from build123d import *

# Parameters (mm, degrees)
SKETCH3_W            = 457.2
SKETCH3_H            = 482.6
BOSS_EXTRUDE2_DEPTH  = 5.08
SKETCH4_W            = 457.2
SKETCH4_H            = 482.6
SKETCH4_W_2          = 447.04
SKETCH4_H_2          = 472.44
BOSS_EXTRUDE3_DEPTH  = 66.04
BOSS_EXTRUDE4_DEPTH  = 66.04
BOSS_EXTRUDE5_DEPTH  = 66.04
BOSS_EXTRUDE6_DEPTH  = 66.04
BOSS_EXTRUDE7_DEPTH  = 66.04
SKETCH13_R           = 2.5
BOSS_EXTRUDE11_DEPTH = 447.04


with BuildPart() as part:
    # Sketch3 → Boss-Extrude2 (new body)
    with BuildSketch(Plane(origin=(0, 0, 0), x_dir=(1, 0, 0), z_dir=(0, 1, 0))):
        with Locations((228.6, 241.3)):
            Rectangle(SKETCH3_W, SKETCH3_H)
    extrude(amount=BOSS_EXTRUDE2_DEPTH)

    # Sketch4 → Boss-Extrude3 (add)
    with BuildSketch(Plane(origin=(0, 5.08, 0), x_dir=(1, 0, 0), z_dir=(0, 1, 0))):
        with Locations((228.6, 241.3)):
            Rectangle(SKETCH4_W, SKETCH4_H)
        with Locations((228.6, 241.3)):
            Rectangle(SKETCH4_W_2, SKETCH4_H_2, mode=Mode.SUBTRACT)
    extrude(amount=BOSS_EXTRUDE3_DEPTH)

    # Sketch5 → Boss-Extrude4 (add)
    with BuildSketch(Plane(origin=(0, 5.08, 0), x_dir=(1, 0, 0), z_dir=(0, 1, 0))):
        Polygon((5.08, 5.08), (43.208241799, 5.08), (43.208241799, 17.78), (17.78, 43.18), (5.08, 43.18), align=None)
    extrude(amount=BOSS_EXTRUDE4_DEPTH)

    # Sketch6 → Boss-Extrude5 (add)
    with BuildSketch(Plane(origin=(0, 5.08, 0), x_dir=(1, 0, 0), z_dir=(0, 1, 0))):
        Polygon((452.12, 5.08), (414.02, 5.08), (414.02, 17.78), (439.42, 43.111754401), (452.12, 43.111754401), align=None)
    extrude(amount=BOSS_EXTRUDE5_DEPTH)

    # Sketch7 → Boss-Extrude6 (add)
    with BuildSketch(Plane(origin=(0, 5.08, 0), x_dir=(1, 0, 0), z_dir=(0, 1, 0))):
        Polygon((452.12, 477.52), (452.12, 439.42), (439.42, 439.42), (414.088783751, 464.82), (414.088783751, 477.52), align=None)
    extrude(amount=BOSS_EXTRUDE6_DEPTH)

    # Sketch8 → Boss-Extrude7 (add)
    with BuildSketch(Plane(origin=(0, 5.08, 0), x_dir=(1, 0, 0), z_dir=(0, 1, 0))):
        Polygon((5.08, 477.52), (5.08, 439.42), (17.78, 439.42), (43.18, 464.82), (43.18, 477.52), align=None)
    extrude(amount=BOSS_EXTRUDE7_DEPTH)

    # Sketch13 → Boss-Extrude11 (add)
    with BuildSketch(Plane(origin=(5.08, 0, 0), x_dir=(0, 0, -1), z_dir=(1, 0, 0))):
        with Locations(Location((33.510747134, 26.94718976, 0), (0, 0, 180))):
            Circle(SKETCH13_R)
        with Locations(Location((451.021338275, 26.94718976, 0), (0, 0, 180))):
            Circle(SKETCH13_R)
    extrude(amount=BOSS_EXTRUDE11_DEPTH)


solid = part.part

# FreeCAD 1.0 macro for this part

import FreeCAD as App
import Part
import Sketcher
Q = App.Units.Quantity

doc = App.newDocument("Part")
body = doc.addObject("PartDesign::Body", "Body")

# Sketch on XZ plane
sketch1 = body.newObject("Sketcher::SketchObject", "Sketch")
sketch1.AttachmentSupport = (doc.getObject("XZ_Plane"), [""])
sketch1.MapMode = "FlatFace"
sketch1.addGeometry(Part.LineSegment(App.Vector(0, -482.6, 0), App.Vector(0, 0, 0)), False)
sketch1.addGeometry(Part.LineSegment(App.Vector(0, 0, 0), App.Vector(457.2, 0, 0)), False)
sketch1.addGeometry(Part.LineSegment(App.Vector(457.2, 0, 0), App.Vector(457.2, -482.6, 0)), False)
sketch1.addGeometry(Part.LineSegment(App.Vector(457.2, -482.6, 0), App.Vector(0, -482.6, 0)), False)
sketch1.addConstraint(Sketcher.Constraint("Coincident", 0, 2, 1, 1))
sketch1.addConstraint(Sketcher.Constraint("Coincident", 1, 2, 2, 1))
sketch1.addConstraint(Sketcher.Constraint("Coincident", 2, 2, 3, 1))
sketch1.addConstraint(Sketcher.Constraint("Coincident", 3, 2, 0, 1))
sketch1.addConstraint(Sketcher.Constraint("Vertical", 0))
sketch1.addConstraint(Sketcher.Constraint("Horizontal", 1))
sketch1.addConstraint(Sketcher.Constraint("Vertical", 2))
sketch1.addConstraint(Sketcher.Constraint("Horizontal", 3))
sketch1.addConstraint(Sketcher.Constraint("Coincident", 0, 2, -1, 1))
sketch1.addConstraint(Sketcher.Constraint("DistanceX", 1, 1, 1, 2, Q("18 in")))
sketch1.addConstraint(Sketcher.Constraint("DistanceY", 0, 1, 0, 2, Q("19 in")))
pad1 = body.newObject("PartDesign::Pad", "Pad")
pad1.Profile = sketch1
pad1.Length = Q("0.2 in")
pad1.Reversed = True

# Sketch on XZ plane
sketch2 = body.newObject("Sketcher::SketchObject", "Sketch001")
sketch2.AttachmentSupport = (doc.getObject("XZ_Plane"), [""])
sketch2.MapMode = "FlatFace"
sketch2.AttachmentOffset = App.Placement(App.Vector(0, 0, -0.2 * 25.4), App.Rotation())
sketch2.addGeometry(Part.LineSegment(App.Vector(0, -482.6, 0), App.Vector(0, 0, 0)), False)
sketch2.addGeometry(Part.LineSegment(App.Vector(0, 0, 0), App.Vector(457.2, 0, 0)), False)
sketch2.addGeometry(Part.LineSegment(App.Vector(457.2, 0, 0), App.Vector(457.2, -482.6, 0)), False)
sketch2.addGeometry(Part.LineSegment(App.Vector(457.2, -482.6, 0), App.Vector(0, -482.6, 0)), False)
sketch2.addGeometry(Part.LineSegment(App.Vector(452.12, -5.08, 0), App.Vector(5.08, -5.08, 0)), False)
sketch2.addGeometry(Part.LineSegment(App.Vector(5.08, -5.08, 0), App.Vector(5.08, -477.52, 0)), False)
sketch2.addGeometry(Part.LineSegment(App.Vector(5.08, -477.52, 0), App.Vector(452.12, -477.52, 0)), False)
sketch2.addGeometry(Part.LineSegment(App.Vector(452.12, -477.52, 0), App.Vector(452.12, -5.08, 0)), False)
sketch2.addConstraint(Sketcher.Constraint("Coincident", 0, 2, 1, 1))
sketch2.addConstraint(Sketcher.Constraint("Coincident", 1, 2, 2, 1))
sketch2.addConstraint(Sketcher.Constraint("Coincident", 2, 2, 3, 1))
sketch2.addConstraint(Sketcher.Constraint("Coincident", 3, 2, 0, 1))
sketch2.addConstraint(Sketcher.Constraint("Coincident", 4, 2, 5, 1))
sketch2.addConstraint(Sketcher.Constraint("Coincident", 5, 2, 6, 1))
sketch2.addConstraint(Sketcher.Constraint("Coincident", 6, 2, 7, 1))
sketch2.addConstraint(Sketcher.Constraint("Coincident", 7, 2, 4, 1))
sketch2.addConstraint(Sketcher.Constraint("Vertical", 0))
sketch2.addConstraint(Sketcher.Constraint("Horizontal", 1))
sketch2.addConstraint(Sketcher.Constraint("Vertical", 2))
sketch2.addConstraint(Sketcher.Constraint("Horizontal", 3))
sketch2.addConstraint(Sketcher.Constraint("Horizontal", 4))
sketch2.addConstraint(Sketcher.Constraint("Vertical", 5))
sketch2.addConstraint(Sketcher.Constraint("Horizontal", 6))
sketch2.addConstraint(Sketcher.Constraint("Vertical", 7))
sketch2.addConstraint(Sketcher.Constraint("Coincident", 0, 2, -1, 1))
sketch2.addConstraint(Sketcher.Constraint("DistanceX", 1, 1, 1, 2, Q("18 in")))
sketch2.addConstraint(Sketcher.Constraint("DistanceY", 0, 1, 0, 2, Q("19 in")))
sketch2.addConstraint(Sketcher.Constraint("DistanceX", 4, 2, 4, 1, Q("17.6 in")))
sketch2.addConstraint(Sketcher.Constraint("DistanceY", 5, 2, 5, 1, Q("18.6 in")))
sketch2.addConstraint(Sketcher.Constraint("DistanceX", -1, 1, 4, 2, Q("0.2 in")))
sketch2.addConstraint(Sketcher.Constraint("DistanceY", 4, 2, -1, 1, Q("0.2 in")))
pad2 = body.newObject("PartDesign::Pad", "Pad001")
pad2.Profile = sketch2
pad2.Length = Q("2.6 in")
pad2.Reversed = True

# Sketch on XZ plane
sketch3 = body.newObject("Sketcher::SketchObject", "Sketch002")
sketch3.AttachmentSupport = (doc.getObject("XZ_Plane"), [""])
sketch3.MapMode = "FlatFace"
sketch3.AttachmentOffset = App.Placement(App.Vector(0, 0, -0.2 * 25.4), App.Rotation())
sketch3.addGeometry(Part.LineSegment(App.Vector(5.08, -5.08, 0), App.Vector(43.208242, -5.08, 0)), False)
sketch3.addGeometry(Part.LineSegment(App.Vector(43.208242, -5.08, 0), App.Vector(43.208242, -17.78, 0)), False)
sketch3.addGeometry(Part.LineSegment(App.Vector(43.208242, -17.78, 0), App.Vector(17.78, -43.18, 0)), False)
sketch3.addGeometry(Part.LineSegment(App.Vector(17.78, -43.18, 0), App.Vector(5.08, -43.18, 0)), False)
sketch3.addGeometry(Part.LineSegment(App.Vector(5.08, -43.18, 0), App.Vector(5.08, -5.08, 0)), False)
sketch3.addConstraint(Sketcher.Constraint("Coincident", 0, 2, 1, 1))
sketch3.addConstraint(Sketcher.Constraint("Coincident", 1, 2, 2, 1))
sketch3.addConstraint(Sketcher.Constraint("Coincident", 2, 2, 3, 1))
sketch3.addConstraint(Sketcher.Constraint("Coincident", 3, 2, 4, 1))
sketch3.addConstraint(Sketcher.Constraint("Coincident", 4, 2, 0, 1))
sketch3.addConstraint(Sketcher.Constraint("Horizontal", 0))
sketch3.addConstraint(Sketcher.Constraint("Vertical", 1))
sketch3.addConstraint(Sketcher.Constraint("Horizontal", 3))
sketch3.addConstraint(Sketcher.Constraint("Vertical", 4))
sketch3.addConstraint(Sketcher.Constraint("Equal", 3, 1))
sketch3.addConstraint(Sketcher.Constraint("DistanceX", 3, 2, 3, 1, Q("0.5 in")))
sketch3.addConstraint(Sketcher.Constraint("DistanceY", 4, 1, 4, 2, Q("1.5 in")))
sketch3.addConstraint(Sketcher.Constraint("DistanceY", 0, 2, -1, 1, Q("0.2 in")))
sketch3.addConstraint(Sketcher.Constraint("DistanceX", -1, 1, 2, 2, Q("0.7 in")))
sketch3.addConstraint(Sketcher.Constraint("Distance", 2, Q("1.415 in")))
pad3 = body.newObject("PartDesign::Pad", "Pad002")
pad3.Profile = sketch3
pad3.Length = Q("2.6 in")
pad3.Reversed = True

# Sketch on XZ plane
sketch4 = body.newObject("Sketcher::SketchObject", "Sketch003")
sketch4.AttachmentSupport = (doc.getObject("XZ_Plane"), [""])
sketch4.MapMode = "FlatFace"
sketch4.AttachmentOffset = App.Placement(App.Vector(0, 0, -0.2 * 25.4), App.Rotation())
sketch4.addGeometry(Part.LineSegment(App.Vector(414.02, -5.08, 0), App.Vector(452.12, -5.08, 0)), False)
sketch4.addGeometry(Part.LineSegment(App.Vector(452.12, -5.08, 0), App.Vector(452.12, -43.111754, 0)), False)
sketch4.addGeometry(Part.LineSegment(App.Vector(452.12, -43.111754, 0), App.Vector(439.42, -43.111754, 0)), False)
sketch4.addGeometry(Part.LineSegment(App.Vector(439.42, -43.111754, 0), App.Vector(414.02, -17.78, 0)), False)
sketch4.addGeometry(Part.LineSegment(App.Vector(414.02, -17.78, 0), App.Vector(414.02, -5.08, 0)), False)
sketch4.addConstraint(Sketcher.Constraint("Coincident", 0, 2, 1, 1))
sketch4.addConstraint(Sketcher.Constraint("Coincident", 1, 2, 2, 1))
sketch4.addConstraint(Sketcher.Constraint("Coincident", 2, 2, 3, 1))
sketch4.addConstraint(Sketcher.Constraint("Coincident", 3, 2, 4, 1))
sketch4.addConstraint(Sketcher.Constraint("Coincident", 4, 2, 0, 1))
sketch4.addConstraint(Sketcher.Constraint("Horizontal", 0))
sketch4.addConstraint(Sketcher.Constraint("Vertical", 1))
sketch4.addConstraint(Sketcher.Constraint("Horizontal", 2))
sketch4.addConstraint(Sketcher.Constraint("Vertical", 4))
sketch4.addConstraint(Sketcher.Constraint("Equal", 2, 4))
sketch4.addConstraint(Sketcher.Constraint("DistanceX", 0, 1, 0, 2, Q("1.5 in")))
sketch4.addConstraint(Sketcher.Constraint("DistanceX", 2, 2, 2, 1, Q("0.5 in")))
sketch4.addConstraint(Sketcher.Constraint("DistanceX", -1, 1, 0, 2, Q("17.8 in")))
sketch4.addConstraint(Sketcher.Constraint("DistanceY", 0, 2, -1, 1, Q("0.2 in")))
sketch4.addConstraint(Sketcher.Constraint("Distance", 3, Q("35.8728 mm")))
pad4 = body.newObject("PartDesign::Pad", "Pad003")
pad4.Profile = sketch4
pad4.Length = Q("2.6 in")
pad4.Reversed = True

# Sketch on XZ plane
sketch5 = body.newObject("Sketcher::SketchObject", "Sketch004")
sketch5.AttachmentSupport = (doc.getObject("XZ_Plane"), [""])
sketch5.MapMode = "FlatFace"
sketch5.AttachmentOffset = App.Placement(App.Vector(0, 0, -0.2 * 25.4), App.Rotation())
sketch5.addGeometry(Part.LineSegment(App.Vector(452.12, -439.42, 0), App.Vector(452.12, -477.52, 0)), False)
sketch5.addGeometry(Part.LineSegment(App.Vector(452.12, -477.52, 0), App.Vector(414.088784, -477.52, 0)), False)
sketch5.addGeometry(Part.LineSegment(App.Vector(414.088784, -477.52, 0), App.Vector(414.088784, -464.82, 0)), False)
sketch5.addGeometry(Part.LineSegment(App.Vector(414.088784, -464.82, 0), App.Vector(439.42, -439.42, 0)), False)
sketch5.addGeometry(Part.LineSegment(App.Vector(439.42, -439.42, 0), App.Vector(452.12, -439.42, 0)), False)
sketch5.addConstraint(Sketcher.Constraint("Coincident", 0, 2, 1, 1))
sketch5.addConstraint(Sketcher.Constraint("Coincident", 1, 2, 2, 1))
sketch5.addConstraint(Sketcher.Constraint("Coincident", 2, 2, 3, 1))
sketch5.addConstraint(Sketcher.Constraint("Coincident", 3, 2, 4, 1))
sketch5.addConstraint(Sketcher.Constraint("Coincident", 4, 2, 0, 1))
sketch5.addConstraint(Sketcher.Constraint("Vertical", 0))
sketch5.addConstraint(Sketcher.Constraint("Horizontal", 1))
sketch5.addConstraint(Sketcher.Constraint("Vertical", 2))
sketch5.addConstraint(Sketcher.Constraint("Horizontal", 4))
sketch5.addConstraint(Sketcher.Constraint("Equal", 4, 2))
sketch5.addConstraint(Sketcher.Constraint("DistanceX", 4, 1, 4, 2, Q("0.5 in")))
sketch5.addConstraint(Sketcher.Constraint("DistanceY", 0, 2, 0, 1, Q("1.5 in")))
sketch5.addConstraint(Sketcher.Constraint("DistanceX", -1, 1, 0, 2, Q("17.8 in")))
sketch5.addConstraint(Sketcher.Constraint("DistanceY", 0, 2, -1, 1, Q("18.8 in")))
sketch5.addConstraint(Sketcher.Constraint("Distance", 3, Q("1.4123 in")))
pad5 = body.newObject("PartDesign::Pad", "Pad004")
pad5.Profile = sketch5
pad5.Length = Q("2.6 in")
pad5.Reversed = True

# Sketch on XZ plane
sketch6 = body.newObject("Sketcher::SketchObject", "Sketch005")
sketch6.AttachmentSupport = (doc.getObject("XZ_Plane"), [""])
sketch6.MapMode = "FlatFace"
sketch6.AttachmentOffset = App.Placement(App.Vector(0, 0, -0.2 * 25.4), App.Rotation())
sketch6.addGeometry(Part.LineSegment(App.Vector(5.08, -477.52, 0), App.Vector(5.08, -439.42, 0)), False)
sketch6.addGeometry(Part.LineSegment(App.Vector(5.08, -439.42, 0), App.Vector(17.78, -439.42, 0)), False)
sketch6.addGeometry(Part.LineSegment(App.Vector(17.78, -439.42, 0), App.Vector(43.18, -464.82, 0)), False)
sketch6.addGeometry(Part.LineSegment(App.Vector(43.18, -464.82, 0), App.Vector(43.18, -477.52, 0)), False)
sketch6.addGeometry(Part.LineSegment(App.Vector(43.18, -477.52, 0), App.Vector(5.08, -477.52, 0)), False)
sketch6.addConstraint(Sketcher.Constraint("Coincident", 0, 2, 1, 1))
sketch6.addConstraint(Sketcher.Constraint("Coincident", 1, 2, 2, 1))
sketch6.addConstraint(Sketcher.Constraint("Coincident", 2, 2, 3, 1))
sketch6.addConstraint(Sketcher.Constraint("Coincident", 3, 2, 4, 1))
sketch6.addConstraint(Sketcher.Constraint("Coincident", 4, 2, 0, 1))
sketch6.addConstraint(Sketcher.Constraint("Vertical", 0))
sketch6.addConstraint(Sketcher.Constraint("Horizontal", 1))
sketch6.addConstraint(Sketcher.Constraint("Vertical", 3))
sketch6.addConstraint(Sketcher.Constraint("Horizontal", 4))
sketch6.addConstraint(Sketcher.Constraint("Equal", 4, 0))
sketch6.addConstraint(Sketcher.Constraint("Equal", 1, 3))
sketch6.addConstraint(Sketcher.Constraint("DistanceX", 1, 1, 1, 2, Q("0.5 in")))
sketch6.addConstraint(Sketcher.Constraint("DistanceX", 4, 2, 4, 1, Q("1.5 in")))
sketch6.addConstraint(Sketcher.Constraint("DistanceX", -1, 1, 0, 2, Q("0.2 in")))
sketch6.addConstraint(Sketcher.Constraint("DistanceY", 0, 2, -1, 1, Q("17.3 in")))
pad6 = body.newObject("PartDesign::Pad", "Pad005")
pad6.Profile = sketch6
pad6.Length = Q("2.6 in")
pad6.Reversed = True

# Sketch on YZ plane
sketch7 = body.newObject("Sketcher::SketchObject", "Sketch006")
sketch7.AttachmentSupport = (doc.getObject("YZ_Plane"), [""])
sketch7.MapMode = "FlatFace"
sketch7.AttachmentOffset = App.Placement(App.Vector(0, 0, 0.2 * 25.4), App.Rotation())
sketch7.addGeometry(Part.Circle(App.Vector(26.94719, -33.510747, 0), App.Vector(0, 0, 1), 2.5), False)
sketch7.addGeometry(Part.Circle(App.Vector(26.94719, -451.021338, 0), App.Vector(0, 0, 1), 2.5), False)
sketch7.addConstraint(Sketcher.Constraint("Equal", 0, 1))
sketch7.addConstraint(Sketcher.Constraint("Vertical", 0, 3, 1, 3))
sketch7.addConstraint(Sketcher.Constraint("Diameter", 0, Q("5 mm")))
sketch7.addConstraint(Sketcher.Constraint("DistanceX", -1, 1, 0, 3, Q("26.94719 mm")))
sketch7.addConstraint(Sketcher.Constraint("DistanceY", 1, 3, -1, 1, Q("451.021338 mm")))
sketch7.addConstraint(Sketcher.Constraint("DistanceY", 1, 3, 0, 3, Q("417.510591 mm")))
pad7 = body.newObject("PartDesign::Pad", "Pad006")
pad7.Profile = sketch7
pad7.Length = Q("17.6 in")

doc.recompute()
